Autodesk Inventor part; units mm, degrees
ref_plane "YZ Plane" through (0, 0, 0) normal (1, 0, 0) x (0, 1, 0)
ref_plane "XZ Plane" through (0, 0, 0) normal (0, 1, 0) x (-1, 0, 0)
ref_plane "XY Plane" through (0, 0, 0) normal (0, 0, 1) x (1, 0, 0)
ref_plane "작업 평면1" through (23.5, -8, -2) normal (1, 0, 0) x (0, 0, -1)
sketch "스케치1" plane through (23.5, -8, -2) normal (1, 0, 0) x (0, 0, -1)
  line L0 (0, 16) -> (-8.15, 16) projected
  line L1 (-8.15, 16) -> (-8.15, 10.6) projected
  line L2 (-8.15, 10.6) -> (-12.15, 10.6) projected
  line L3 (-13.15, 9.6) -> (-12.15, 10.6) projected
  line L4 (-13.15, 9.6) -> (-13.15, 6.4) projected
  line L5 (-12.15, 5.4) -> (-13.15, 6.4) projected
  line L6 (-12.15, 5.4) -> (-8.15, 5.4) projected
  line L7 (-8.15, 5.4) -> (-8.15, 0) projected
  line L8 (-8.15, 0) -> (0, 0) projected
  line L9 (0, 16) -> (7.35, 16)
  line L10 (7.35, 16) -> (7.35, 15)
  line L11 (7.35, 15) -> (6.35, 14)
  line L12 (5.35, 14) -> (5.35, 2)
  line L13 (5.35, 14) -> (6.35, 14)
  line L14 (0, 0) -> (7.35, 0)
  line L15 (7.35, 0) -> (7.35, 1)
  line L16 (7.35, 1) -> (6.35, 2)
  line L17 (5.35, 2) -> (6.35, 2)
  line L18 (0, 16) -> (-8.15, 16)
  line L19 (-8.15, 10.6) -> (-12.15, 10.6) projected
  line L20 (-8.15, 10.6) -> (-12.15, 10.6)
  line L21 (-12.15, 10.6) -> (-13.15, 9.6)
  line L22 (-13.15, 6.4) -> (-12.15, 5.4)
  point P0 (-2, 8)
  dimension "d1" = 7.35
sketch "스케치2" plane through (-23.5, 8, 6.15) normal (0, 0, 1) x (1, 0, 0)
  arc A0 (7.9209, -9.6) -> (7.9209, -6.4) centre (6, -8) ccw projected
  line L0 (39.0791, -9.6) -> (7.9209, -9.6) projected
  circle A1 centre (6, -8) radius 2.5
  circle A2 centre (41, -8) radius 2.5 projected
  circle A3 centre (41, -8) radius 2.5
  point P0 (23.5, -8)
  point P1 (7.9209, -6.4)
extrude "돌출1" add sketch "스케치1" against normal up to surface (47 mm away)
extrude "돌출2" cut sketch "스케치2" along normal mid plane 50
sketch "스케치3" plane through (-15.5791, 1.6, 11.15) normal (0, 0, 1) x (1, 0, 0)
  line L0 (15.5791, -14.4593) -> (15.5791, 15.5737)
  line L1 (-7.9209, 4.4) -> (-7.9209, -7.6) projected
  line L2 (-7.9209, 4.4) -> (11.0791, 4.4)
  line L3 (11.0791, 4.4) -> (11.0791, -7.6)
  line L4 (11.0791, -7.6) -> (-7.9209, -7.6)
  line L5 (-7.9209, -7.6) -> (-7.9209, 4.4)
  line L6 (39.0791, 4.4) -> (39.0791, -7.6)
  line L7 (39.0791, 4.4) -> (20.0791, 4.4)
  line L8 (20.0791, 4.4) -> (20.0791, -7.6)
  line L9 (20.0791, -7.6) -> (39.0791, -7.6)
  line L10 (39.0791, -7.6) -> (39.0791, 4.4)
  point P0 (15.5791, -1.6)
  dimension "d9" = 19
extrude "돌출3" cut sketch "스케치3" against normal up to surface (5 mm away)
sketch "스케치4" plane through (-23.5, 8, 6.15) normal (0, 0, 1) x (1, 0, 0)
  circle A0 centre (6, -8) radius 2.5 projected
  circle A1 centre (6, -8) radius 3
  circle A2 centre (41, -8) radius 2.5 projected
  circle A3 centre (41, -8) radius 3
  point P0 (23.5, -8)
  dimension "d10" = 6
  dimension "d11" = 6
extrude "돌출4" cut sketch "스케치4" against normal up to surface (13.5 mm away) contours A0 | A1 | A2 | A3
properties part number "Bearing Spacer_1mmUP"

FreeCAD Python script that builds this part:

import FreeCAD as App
import Part
import Sketcher

V = App.Vector
Q = App.Units.Quantity

doc = App.newDocument("Part")
params = doc.addObject("Spreadsheet::Sheet", "Params")
for row, (alias, value) in enumerate([
    ("sketch1_width", "1 mm"),
    ("sketch1_width2", "12 mm"),
    ("sketch1_height", "4 mm"),
    ("sketch1_width3", "5.4 mm"),
    ("sketch1_height2", "15.5 mm"),
    ("pad1_length", "47 mm"),
    ("sketch2_diameter", "5 mm"),
    ("pocket1_length", "50 mm"),
    ("sketch3_width", "19 mm"),
    ("sketch3_height", "12 mm"),
    ("pocket2_length", "5 mm"),
    ("sketch4_diameter", "6 mm"),
    ("pocket3_length", "13.5 mm"),
], start=1):
    params.set(f"A{row}", alias)
    params.set(f"B{row}", "=" + value)
    params.setAlias(f"B{row}", alias)

body = doc.addObject("PartDesign::Body", "Body")

# Sketch on YZ plane
sketch1 = body.newObject("Sketcher::SketchObject", "Sketch")
sketch1.AttachmentSupport = (doc.getObject("YZ_Plane"), [""])
sketch1.MapMode = "FlatFace"
sketch1.AttachmentOffset = App.Placement(V(0, 0, 23.5), App.Rotation())
sketch1.addGeometry([
    Part.LineSegment(V(8, -9.35, 0), V(8, 6.15, 0)),  # 0
    Part.LineSegment(V(8, 6.15, 0), V(2.6, 6.15, 0)),  # 1
    Part.LineSegment(V(2.6, 6.15, 0), V(2.6, 10.15, 0)),  # 2
    Part.LineSegment(V(2.6, 10.15, 0), V(1.6, 11.15, 0)),  # 3
    Part.LineSegment(V(1.6, 11.15, 0), V(-1.6, 11.15, 0)),  # 4
    Part.LineSegment(V(-1.6, 11.15, 0), V(-2.6, 10.15, 0)),  # 5
    Part.LineSegment(V(-2.6, 10.15, 0), V(-2.6, 6.15, 0)),  # 6
    Part.LineSegment(V(-2.6, 6.15, 0), V(-8, 6.15, 0)),  # 7
    Part.LineSegment(V(-8, 6.15, 0), V(-8, -9.35, 0)),  # 8
    Part.LineSegment(V(-8, -9.35, 0), V(-7, -9.35, 0)),  # 9
    Part.LineSegment(V(-7, -9.35, 0), V(-6, -8.35, 0)),  # 10
    Part.LineSegment(V(-6, -8.35, 0), V(-6, -7.35, 0)),  # 11
    Part.LineSegment(V(-6, -7.35, 0), V(6, -7.35, 0)),  # 12
    Part.LineSegment(V(6, -7.35, 0), V(6, -8.35, 0)),  # 13
    Part.LineSegment(V(6, -8.35, 0), V(7, -9.35, 0)),  # 14
    Part.LineSegment(V(7, -9.35, 0), V(8, -9.35, 0)),  # 15
], False)
sketch1.addConstraint([
    Sketcher.Constraint("Coincident", 0, 2, 1, 1),
    Sketcher.Constraint("Coincident", 1, 2, 2, 1),
    Sketcher.Constraint("Coincident", 2, 2, 3, 1),
    Sketcher.Constraint("Coincident", 3, 2, 4, 1),
    Sketcher.Constraint("Coincident", 4, 2, 5, 1),
    Sketcher.Constraint("Coincident", 5, 2, 6, 1),
    Sketcher.Constraint("Coincident", 6, 2, 7, 1),
    Sketcher.Constraint("Coincident", 7, 2, 8, 1),
    Sketcher.Constraint("Coincident", 8, 2, 9, 1),
    Sketcher.Constraint("Coincident", 9, 2, 10, 1),
    Sketcher.Constraint("Coincident", 10, 2, 11, 1),
    Sketcher.Constraint("Coincident", 11, 2, 12, 1),
    Sketcher.Constraint("Coincident", 12, 2, 13, 1),
    Sketcher.Constraint("Coincident", 13, 2, 14, 1),
    Sketcher.Constraint("Coincident", 14, 2, 15, 1),
    Sketcher.Constraint("Coincident", 15, 2, 0, 1),
    Sketcher.Constraint("Vertical", 0),
    Sketcher.Constraint("Horizontal", 1),
    Sketcher.Constraint("Vertical", 2),
    Sketcher.Constraint("Horizontal", 4),
    Sketcher.Constraint("Vertical", 6),
    Sketcher.Constraint("Horizontal", 7),
    Sketcher.Constraint("Vertical", 8),
    Sketcher.Constraint("Horizontal", 9),
    Sketcher.Constraint("Vertical", 11),
    Sketcher.Constraint("Horizontal", 12),
    Sketcher.Constraint("Vertical", 13),
    Sketcher.Constraint("Horizontal", 15),
    Sketcher.Constraint("Symmetric", 2, 2, 5, 2, -2),
    Sketcher.Constraint("Symmetric", 0, 2, 7, 2, -2),
    Sketcher.Constraint("Symmetric", 10, 2, 13, 2, -2),
    Sketcher.Constraint("Symmetric", 9, 2, 14, 2, -2),
    Sketcher.Constraint("Perpendicular", 3, 5),
    Sketcher.Constraint("Parallel", 5, 10),
    Sketcher.Constraint("Perpendicular", 10, 14),
    Sketcher.Constraint("Equal", 15, 11),
    Sketcher.Constraint("Equal", 5, 10),
    Sketcher.Constraint("DistanceX", 9, 1, 9, 2, Q("1 mm")),
    Sketcher.Constraint("DistanceX", 12, 1, 12, 2, Q("12 mm")),
    Sketcher.Constraint("DistanceY", 2, 1, 2, 2, Q("4 mm")),
    Sketcher.Constraint("DistanceY", 11, 2, -1, 1, Q("7.35 mm")),
    Sketcher.Constraint("DistanceX", 1, 2, 1, 1, Q("5.4 mm")),
    Sketcher.Constraint("DistanceY", 0, 1, 0, 2, Q("15.5 mm")),
    Sketcher.Constraint("DistanceX", -1, 1, 0, 2, Q("8 mm")),
])
sketch1.setExpression("Constraints[37]", "Params.sketch1_width")
sketch1.setExpression("Constraints[38]", "Params.sketch1_width2")
sketch1.setExpression("Constraints[39]", "Params.sketch1_height")
sketch1.setExpression("Constraints[41]", "Params.sketch1_width3")
sketch1.setExpression("Constraints[42]", "Params.sketch1_height2")
pad1 = body.newObject("PartDesign::Pad", "Pad")
pad1.Profile = sketch1
pad1.setExpression("Length", "Params.pad1_length")
pad1.Reversed = True

# Sketch on XY plane
sketch2 = body.newObject("Sketcher::SketchObject", "Sketch001")
sketch2.AttachmentSupport = (doc.getObject("XY_Plane"), [""])
sketch2.MapMode = "FlatFace"
sketch2.AttachmentOffset = App.Placement(V(0, 0, 6.15), App.Rotation())
sketch2.addGeometry([
    Part.Circle(V(-17.5, 0, 0), V(0, 0, 1), 2.499971),
    Part.Circle(V(17.5, 0, 0), V(0, 0, 1), 2.5),
], False)
sketch2.addConstraint([
    Sketcher.Constraint("Equal", 0, 1),
    Sketcher.Constraint("Symmetric", 0, 3, 1, 3, -1, 1),
    Sketcher.Constraint("PointOnObject", 0, 3, -1),
    Sketcher.Constraint("Diameter", 0, Q("5 mm")),
    Sketcher.Constraint("DistanceX", 0, 3, 1, 3, Q("35 mm")),
])
sketch2.setExpression("Constraints[3]", "Params.sketch2_diameter")
pocket1 = body.newObject("PartDesign::Pocket", "Pocket")
pocket1.Profile = sketch2
pocket1.setExpression("Length", "Params.pocket1_length")
pocket1.Midplane = True

# Sketch on XY plane
sketch3 = body.newObject("Sketcher::SketchObject", "Sketch002")
sketch3.AttachmentSupport = (doc.getObject("XY_Plane"), [""])
sketch3.MapMode = "FlatFace"
sketch3.AttachmentOffset = App.Placement(V(0, 0, 11.15), App.Rotation())
sketch3.addGeometry([
    Part.LineSegment(V(-4.5, 6, 0), V(-23.5, 6, 0)),  # 0
    Part.LineSegment(V(-23.5, 6, 0), V(-23.5, -6, 0)),  # 1
    Part.LineSegment(V(-23.5, -6, 0), V(-4.5, -6, 0)),  # 2
    Part.LineSegment(V(-4.5, -6, 0), V(-4.5, 6, 0)),  # 3
    Part.LineSegment(V(23.5, -6, 0), V(23.5, 6, 0)),  # 4
    Part.LineSegment(V(23.5, 6, 0), V(4.5, 6, 0)),  # 5
    Part.LineSegment(V(4.5, 6, 0), V(4.5, -6, 0)),  # 6
    Part.LineSegment(V(4.5, -6, 0), V(23.5, -6, 0)),  # 7
], False)
sketch3.addConstraint([
    Sketcher.Constraint("Coincident", 0, 2, 1, 1),
    Sketcher.Constraint("Coincident", 1, 2, 2, 1),
    Sketcher.Constraint("Coincident", 2, 2, 3, 1),
    Sketcher.Constraint("Coincident", 3, 2, 0, 1),
    Sketcher.Constraint("Coincident", 4, 2, 5, 1),
    Sketcher.Constraint("Coincident", 5, 2, 6, 1),
    Sketcher.Constraint("Coincident", 6, 2, 7, 1),
    Sketcher.Constraint("Coincident", 7, 2, 4, 1),
    Sketcher.Constraint("Horizontal", 0),
    Sketcher.Constraint("Vertical", 1),
    Sketcher.Constraint("Horizontal", 2),
    Sketcher.Constraint("Vertical", 3),
    Sketcher.Constraint("Vertical", 4),
    Sketcher.Constraint("Horizontal", 5),
    Sketcher.Constraint("Vertical", 6),
    Sketcher.Constraint("Horizontal", 7),
    Sketcher.Constraint("Symmetric", 1, 2, 4, 2, -1, 1),
    Sketcher.Constraint("Symmetric", 3, 2, 6, 2, -1, 1),
    Sketcher.Constraint("Horizontal", 3, 2, 4, 2),
    Sketcher.Constraint("DistanceX", 0, 2, 0, 1, Q("19 mm")),
    Sketcher.Constraint("DistanceY", 1, 2, 1, 1, Q("12 mm")),
    Sketcher.Constraint("DistanceX", 3, 2, 4, 2, Q("28 mm")),
])
sketch3.setExpression("Constraints[19]", "Params.sketch3_width")
sketch3.setExpression("Constraints[20]", "Params.sketch3_height")
pocket2 = body.newObject("PartDesign::Pocket", "Pocket001")
pocket2.Profile = sketch3
pocket2.setExpression("Length", "Params.pocket2_length")

# Sketch on XY plane
sketch4 = body.newObject("Sketcher::SketchObject", "Sketch003")
sketch4.AttachmentSupport = (doc.getObject("XY_Plane"), [""])
sketch4.MapMode = "FlatFace"
sketch4.AttachmentOffset = App.Placement(V(0, 0, 6.15), App.Rotation())
sketch4.addGeometry([
    Part.Circle(V(-17.5, 0, 0), V(0, 0, 1), 3),
    Part.Circle(V(17.5, 0, 0), V(0, 0, 1), 3),
], False)
sketch4.addConstraint([
    Sketcher.Constraint("Equal", 0, 1),
    Sketcher.Constraint("Symmetric", 0, 3, 1, 3, -1, 1),
    Sketcher.Constraint("PointOnObject", 0, 3, -1),
    Sketcher.Constraint("Diameter", 0, Q("6 mm")),
    Sketcher.Constraint("DistanceX", 0, 3, 1, 3, Q("35 mm")),
])
sketch4.setExpression("Constraints[3]", "Params.sketch4_diameter")
pocket3 = body.newObject("PartDesign::Pocket", "Pocket002")
pocket3.Profile = sketch4
pocket3.setExpression("Length", "Params.pocket3_length")

doc.recompute()
